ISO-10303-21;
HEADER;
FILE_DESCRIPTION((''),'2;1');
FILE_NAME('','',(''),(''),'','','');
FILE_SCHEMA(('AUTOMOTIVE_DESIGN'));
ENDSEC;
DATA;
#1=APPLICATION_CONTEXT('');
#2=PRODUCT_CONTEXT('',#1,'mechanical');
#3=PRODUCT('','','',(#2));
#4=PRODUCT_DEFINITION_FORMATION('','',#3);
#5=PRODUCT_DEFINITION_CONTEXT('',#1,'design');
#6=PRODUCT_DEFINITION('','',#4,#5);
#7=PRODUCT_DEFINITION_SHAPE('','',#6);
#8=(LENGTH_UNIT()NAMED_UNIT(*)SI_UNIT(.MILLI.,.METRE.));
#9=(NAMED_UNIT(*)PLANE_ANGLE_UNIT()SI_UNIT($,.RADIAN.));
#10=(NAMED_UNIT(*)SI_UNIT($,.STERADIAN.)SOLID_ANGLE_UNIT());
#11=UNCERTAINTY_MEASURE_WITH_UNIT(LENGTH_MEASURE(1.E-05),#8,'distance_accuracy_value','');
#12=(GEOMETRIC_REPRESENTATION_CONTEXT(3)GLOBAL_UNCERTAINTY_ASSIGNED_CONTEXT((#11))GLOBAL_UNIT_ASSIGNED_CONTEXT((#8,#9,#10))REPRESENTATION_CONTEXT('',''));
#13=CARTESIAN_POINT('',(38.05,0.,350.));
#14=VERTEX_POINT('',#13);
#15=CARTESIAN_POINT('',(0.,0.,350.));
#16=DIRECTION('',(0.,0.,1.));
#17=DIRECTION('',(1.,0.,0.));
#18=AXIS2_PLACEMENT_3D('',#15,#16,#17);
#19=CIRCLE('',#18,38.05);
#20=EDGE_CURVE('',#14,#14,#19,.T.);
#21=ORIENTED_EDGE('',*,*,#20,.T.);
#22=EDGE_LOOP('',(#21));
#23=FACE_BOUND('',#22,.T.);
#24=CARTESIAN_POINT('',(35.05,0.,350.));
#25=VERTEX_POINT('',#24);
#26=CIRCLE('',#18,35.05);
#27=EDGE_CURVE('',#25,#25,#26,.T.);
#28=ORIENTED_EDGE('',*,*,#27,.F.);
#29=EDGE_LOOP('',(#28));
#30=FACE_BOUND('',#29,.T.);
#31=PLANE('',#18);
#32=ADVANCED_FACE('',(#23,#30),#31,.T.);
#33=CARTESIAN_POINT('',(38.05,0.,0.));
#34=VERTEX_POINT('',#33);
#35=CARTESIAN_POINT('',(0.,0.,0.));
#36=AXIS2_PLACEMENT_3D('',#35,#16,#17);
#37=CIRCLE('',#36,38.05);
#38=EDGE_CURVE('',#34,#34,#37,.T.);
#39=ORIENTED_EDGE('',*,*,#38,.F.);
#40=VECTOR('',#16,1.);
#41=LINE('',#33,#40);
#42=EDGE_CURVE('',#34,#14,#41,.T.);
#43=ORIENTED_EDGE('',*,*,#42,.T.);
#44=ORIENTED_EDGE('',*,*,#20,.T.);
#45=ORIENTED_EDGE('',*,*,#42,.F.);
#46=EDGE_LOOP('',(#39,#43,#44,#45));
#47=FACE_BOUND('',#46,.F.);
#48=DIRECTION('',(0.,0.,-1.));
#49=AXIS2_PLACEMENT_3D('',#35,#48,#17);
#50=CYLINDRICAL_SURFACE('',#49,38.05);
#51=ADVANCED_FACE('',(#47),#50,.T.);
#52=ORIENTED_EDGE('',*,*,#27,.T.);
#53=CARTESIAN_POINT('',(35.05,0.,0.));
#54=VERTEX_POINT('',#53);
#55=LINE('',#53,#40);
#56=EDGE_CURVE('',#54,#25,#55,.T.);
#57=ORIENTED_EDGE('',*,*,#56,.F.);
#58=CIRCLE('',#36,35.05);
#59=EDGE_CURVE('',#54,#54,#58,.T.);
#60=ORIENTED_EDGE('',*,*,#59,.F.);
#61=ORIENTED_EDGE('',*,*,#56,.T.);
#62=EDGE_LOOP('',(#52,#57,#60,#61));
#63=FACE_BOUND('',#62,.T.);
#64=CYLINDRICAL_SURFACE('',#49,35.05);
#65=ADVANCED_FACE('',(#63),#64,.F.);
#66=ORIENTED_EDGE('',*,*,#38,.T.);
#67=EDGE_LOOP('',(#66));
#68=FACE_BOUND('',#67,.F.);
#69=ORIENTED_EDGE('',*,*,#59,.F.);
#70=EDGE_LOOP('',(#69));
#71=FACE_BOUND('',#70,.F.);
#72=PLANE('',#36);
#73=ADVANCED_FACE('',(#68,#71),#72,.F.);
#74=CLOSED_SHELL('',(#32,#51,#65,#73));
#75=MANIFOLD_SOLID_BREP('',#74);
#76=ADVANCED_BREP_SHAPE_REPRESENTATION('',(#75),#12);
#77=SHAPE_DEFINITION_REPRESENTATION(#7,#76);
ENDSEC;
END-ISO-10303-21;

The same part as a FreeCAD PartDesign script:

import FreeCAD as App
import Part
import Sketcher
from FreeCAD import Vector

doc = App.newDocument("Part")
params = doc.addObject("Spreadsheet::Sheet", "Params")
for row, (alias, value) in enumerate([
    ("sketch1_diameter", "76.1 mm"),
    ("sketch1_diameter2", "70.1 mm"),
    ("pad1_length", "350 mm"),
], start=1):
    params.set(f"A{row}", alias)
    params.set(f"B{row}", "=" + value)
    params.setAlias(f"B{row}", alias)

body = doc.addObject("PartDesign::Body", "Body")

# Sketch on XY plane
sketch1 = body.newObject("Sketcher::SketchObject", "Sketch")
sketch1.AttachmentSupport = (doc.getObject("XY_Plane"), [""])
sketch1.MapMode = "FlatFace"
sketch1.addGeometry([
    Part.Circle(Vector(0, 0, 0), Vector(0, 0, 1), 38),
    Part.Circle(Vector(0, 0, 0), Vector(0, 0, 1), 35),
], False)
sketch1.addConstraint([
    Sketcher.Constraint("Coincident", 0, 3, -1, 1),
    Sketcher.Constraint("Coincident", 1, 3, -1, 1),
    Sketcher.Constraint("Diameter", 0, 76.1),
    Sketcher.Constraint("Diameter", 1, 70.1),
])
sketch1.setExpression("Constraints[2]", "Params.sketch1_diameter")
sketch1.setExpression("Constraints[3]", "Params.sketch1_diameter2")
pad1 = body.newObject("PartDesign::Pad", "Pad")
pad1.Profile = sketch1
pad1.setExpression("Length", "Params.pad1_length")

doc.recompute()
